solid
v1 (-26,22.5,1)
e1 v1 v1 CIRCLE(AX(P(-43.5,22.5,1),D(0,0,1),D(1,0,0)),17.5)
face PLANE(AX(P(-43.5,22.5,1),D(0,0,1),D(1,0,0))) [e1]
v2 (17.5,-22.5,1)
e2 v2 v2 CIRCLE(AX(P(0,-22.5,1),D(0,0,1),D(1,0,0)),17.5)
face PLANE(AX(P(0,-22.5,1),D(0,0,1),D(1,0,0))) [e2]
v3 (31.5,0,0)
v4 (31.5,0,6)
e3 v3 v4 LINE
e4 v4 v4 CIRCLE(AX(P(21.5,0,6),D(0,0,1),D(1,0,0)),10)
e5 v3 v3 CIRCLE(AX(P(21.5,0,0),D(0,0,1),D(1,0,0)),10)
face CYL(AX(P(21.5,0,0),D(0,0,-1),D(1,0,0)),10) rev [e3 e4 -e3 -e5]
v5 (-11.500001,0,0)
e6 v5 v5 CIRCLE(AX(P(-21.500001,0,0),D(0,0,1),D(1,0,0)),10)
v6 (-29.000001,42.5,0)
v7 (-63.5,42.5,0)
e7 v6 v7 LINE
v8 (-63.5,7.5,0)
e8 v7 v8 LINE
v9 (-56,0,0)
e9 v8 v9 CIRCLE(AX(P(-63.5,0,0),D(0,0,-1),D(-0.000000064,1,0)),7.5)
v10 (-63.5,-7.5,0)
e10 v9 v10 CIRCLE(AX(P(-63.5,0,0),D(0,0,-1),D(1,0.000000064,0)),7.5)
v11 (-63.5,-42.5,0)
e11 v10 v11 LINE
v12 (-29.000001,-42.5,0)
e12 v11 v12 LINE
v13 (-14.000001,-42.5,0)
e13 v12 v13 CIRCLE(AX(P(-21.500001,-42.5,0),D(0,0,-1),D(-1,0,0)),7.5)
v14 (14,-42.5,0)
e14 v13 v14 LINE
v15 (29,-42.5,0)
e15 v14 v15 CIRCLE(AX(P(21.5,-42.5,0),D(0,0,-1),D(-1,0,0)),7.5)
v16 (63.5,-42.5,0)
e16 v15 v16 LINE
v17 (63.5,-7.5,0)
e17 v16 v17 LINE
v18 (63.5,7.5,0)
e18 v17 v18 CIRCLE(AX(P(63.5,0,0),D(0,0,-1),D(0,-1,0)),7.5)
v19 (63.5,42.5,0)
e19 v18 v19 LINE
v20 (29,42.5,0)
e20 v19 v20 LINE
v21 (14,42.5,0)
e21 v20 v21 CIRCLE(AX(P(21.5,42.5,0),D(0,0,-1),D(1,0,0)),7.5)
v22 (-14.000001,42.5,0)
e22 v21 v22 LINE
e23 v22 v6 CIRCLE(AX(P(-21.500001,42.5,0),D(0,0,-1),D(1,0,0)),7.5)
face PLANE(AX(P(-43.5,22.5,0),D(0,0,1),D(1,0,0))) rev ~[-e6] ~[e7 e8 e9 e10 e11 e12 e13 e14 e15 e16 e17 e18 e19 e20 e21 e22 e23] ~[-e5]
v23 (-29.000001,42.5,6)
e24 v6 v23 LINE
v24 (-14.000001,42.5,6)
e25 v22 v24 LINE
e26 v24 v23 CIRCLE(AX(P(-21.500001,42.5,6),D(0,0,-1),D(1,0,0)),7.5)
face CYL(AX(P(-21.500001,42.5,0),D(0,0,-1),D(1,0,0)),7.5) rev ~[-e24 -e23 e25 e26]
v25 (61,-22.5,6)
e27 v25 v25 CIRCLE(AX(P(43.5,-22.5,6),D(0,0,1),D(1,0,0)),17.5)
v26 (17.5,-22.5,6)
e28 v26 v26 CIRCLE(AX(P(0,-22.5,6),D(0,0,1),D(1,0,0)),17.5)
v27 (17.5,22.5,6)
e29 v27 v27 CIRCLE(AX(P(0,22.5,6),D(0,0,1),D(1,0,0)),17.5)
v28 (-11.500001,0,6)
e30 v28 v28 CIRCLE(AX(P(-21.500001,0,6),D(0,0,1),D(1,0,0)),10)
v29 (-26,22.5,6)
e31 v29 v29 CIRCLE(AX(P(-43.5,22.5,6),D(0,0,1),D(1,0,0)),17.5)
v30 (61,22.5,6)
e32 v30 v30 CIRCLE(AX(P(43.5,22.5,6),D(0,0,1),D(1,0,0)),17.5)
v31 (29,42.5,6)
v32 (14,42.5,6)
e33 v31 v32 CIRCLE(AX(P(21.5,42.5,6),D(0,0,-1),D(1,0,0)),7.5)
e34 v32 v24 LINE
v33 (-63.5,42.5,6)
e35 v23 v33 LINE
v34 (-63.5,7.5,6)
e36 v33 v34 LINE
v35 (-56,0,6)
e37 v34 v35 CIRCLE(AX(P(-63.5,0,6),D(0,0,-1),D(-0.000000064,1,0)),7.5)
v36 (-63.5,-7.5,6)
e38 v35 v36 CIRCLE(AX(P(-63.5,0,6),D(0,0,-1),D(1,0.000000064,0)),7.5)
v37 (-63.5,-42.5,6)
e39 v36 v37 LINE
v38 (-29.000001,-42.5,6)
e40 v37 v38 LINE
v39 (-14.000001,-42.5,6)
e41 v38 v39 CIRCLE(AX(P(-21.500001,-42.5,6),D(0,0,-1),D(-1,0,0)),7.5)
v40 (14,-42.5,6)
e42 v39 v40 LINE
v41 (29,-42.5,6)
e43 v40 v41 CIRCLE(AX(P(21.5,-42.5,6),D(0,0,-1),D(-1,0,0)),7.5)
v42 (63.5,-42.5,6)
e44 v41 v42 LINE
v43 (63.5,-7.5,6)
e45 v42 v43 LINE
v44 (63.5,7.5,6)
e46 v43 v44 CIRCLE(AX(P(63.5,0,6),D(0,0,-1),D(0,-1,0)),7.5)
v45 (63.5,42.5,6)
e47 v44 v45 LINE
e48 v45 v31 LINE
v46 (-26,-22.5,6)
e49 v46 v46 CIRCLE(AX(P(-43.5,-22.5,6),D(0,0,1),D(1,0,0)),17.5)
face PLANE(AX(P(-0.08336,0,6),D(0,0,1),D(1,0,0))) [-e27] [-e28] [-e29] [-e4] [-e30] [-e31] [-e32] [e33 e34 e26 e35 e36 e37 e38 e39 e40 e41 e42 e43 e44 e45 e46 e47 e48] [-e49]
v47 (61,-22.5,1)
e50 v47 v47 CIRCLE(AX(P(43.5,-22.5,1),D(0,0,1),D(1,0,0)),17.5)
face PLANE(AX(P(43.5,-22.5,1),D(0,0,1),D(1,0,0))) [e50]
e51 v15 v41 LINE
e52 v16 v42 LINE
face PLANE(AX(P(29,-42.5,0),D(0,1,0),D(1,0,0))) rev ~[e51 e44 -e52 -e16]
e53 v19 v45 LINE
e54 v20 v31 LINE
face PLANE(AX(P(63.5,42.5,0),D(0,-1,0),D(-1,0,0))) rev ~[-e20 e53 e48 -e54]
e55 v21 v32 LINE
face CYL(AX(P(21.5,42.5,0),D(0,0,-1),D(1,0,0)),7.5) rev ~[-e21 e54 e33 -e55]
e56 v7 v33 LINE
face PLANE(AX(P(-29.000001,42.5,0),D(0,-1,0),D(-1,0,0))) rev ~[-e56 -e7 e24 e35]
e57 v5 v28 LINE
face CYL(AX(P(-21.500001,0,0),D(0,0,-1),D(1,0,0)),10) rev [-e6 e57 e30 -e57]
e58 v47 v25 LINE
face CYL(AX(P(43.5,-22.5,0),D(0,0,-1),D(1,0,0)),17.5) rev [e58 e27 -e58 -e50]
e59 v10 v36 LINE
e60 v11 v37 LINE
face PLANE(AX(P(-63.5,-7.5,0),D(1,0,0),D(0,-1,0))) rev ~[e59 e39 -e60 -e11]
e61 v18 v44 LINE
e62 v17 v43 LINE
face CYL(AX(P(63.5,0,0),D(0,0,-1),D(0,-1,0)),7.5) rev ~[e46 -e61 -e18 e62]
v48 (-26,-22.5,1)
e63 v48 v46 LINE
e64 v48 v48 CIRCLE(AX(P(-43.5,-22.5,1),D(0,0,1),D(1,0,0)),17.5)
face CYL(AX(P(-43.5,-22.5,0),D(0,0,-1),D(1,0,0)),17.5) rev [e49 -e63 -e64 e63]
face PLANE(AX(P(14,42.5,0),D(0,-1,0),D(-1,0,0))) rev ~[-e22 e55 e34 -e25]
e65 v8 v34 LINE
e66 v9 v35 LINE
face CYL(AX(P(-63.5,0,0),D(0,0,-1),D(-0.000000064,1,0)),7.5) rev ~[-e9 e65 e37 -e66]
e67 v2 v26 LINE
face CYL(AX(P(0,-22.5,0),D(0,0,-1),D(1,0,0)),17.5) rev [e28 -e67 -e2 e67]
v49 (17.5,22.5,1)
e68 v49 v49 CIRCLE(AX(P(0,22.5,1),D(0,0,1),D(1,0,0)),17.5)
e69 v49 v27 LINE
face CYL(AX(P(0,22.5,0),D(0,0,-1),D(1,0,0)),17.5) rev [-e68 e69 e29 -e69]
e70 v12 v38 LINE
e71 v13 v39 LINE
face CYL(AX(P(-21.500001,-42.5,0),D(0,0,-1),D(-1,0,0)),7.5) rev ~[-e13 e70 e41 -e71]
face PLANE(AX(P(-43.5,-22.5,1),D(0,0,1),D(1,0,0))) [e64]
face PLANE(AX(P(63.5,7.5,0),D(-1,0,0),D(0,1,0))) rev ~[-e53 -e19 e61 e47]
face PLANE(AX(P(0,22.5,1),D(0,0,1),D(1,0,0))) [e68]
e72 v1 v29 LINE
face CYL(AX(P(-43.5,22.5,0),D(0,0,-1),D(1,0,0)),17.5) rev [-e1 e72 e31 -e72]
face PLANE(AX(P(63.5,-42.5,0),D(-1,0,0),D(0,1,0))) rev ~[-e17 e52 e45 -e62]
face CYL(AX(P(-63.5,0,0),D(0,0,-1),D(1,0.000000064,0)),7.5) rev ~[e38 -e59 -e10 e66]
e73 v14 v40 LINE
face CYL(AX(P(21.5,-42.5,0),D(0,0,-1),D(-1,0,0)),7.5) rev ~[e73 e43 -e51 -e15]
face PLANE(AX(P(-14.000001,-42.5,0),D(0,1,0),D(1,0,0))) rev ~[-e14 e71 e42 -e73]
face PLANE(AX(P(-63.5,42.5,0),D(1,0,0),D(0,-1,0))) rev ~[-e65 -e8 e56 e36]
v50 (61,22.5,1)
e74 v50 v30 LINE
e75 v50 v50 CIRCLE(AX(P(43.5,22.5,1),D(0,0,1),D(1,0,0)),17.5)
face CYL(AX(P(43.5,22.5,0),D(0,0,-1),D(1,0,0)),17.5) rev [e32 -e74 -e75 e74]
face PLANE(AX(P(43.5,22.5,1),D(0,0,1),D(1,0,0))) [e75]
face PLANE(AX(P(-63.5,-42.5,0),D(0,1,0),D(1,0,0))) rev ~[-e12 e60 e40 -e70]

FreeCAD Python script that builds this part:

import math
import FreeCAD as App
import Part
import Sketcher

doc = App.newDocument("Part")
body = doc.addObject("PartDesign::Body", "Body")

sketch1 = body.newObject("Sketcher::SketchObject", "Sketch")
sketch1.AttachmentSupport = (doc.getObject("XY_Plane"), [""])
sketch1.MapMode = "FlatFace"
sketch1.addGeometry([
    Part.LineSegment(App.Vector(64, 42, 0), App.Vector(29, 42, 0)),
    Part.ArcOfCircle(Part.Circle(App.Vector(22, 42, 0), App.Vector(0, 0, 1), 8), math.radians(180), math.radians(360)),
    Part.LineSegment(App.Vector(14, 42, 0), App.Vector(-14, 42, 0)),
    Part.ArcOfCircle(Part.Circle(App.Vector(-22, 42, 0), App.Vector(0, 0, 1), 8), math.radians(180), math.radians(360)),
    Part.LineSegment(App.Vector(-29, 42, 0), App.Vector(-64, 42, 0)),
    Part.LineSegment(App.Vector(-64, 42, 0), App.Vector(-64, 8, 0)),
    Part.ArcOfCircle(Part.Circle(App.Vector(-63, 0, 0), App.Vector(0, 0, 1), 7), math.radians(0), math.radians(90)),
    Part.ArcOfCircle(Part.Circle(App.Vector(-63, 0, 0), App.Vector(0, 0, 1), 7), math.radians(-90), math.radians(0)),
    Part.LineSegment(App.Vector(-64, -8, 0), App.Vector(-64, -42, 0)),
    Part.LineSegment(App.Vector(-64, -42, 0), App.Vector(-29, -42, 0)),
    Part.ArcOfCircle(Part.Circle(App.Vector(-22, -42, 0), App.Vector(0, 0, 1), 8), math.radians(0), math.radians(180)),
    Part.LineSegment(App.Vector(-14, -42, 0), App.Vector(14, -42, 0)),
    Part.ArcOfCircle(Part.Circle(App.Vector(22, -42, 0), App.Vector(0, 0, 1), 8), math.radians(0), math.radians(180)),
    Part.LineSegment(App.Vector(29, -42, 0), App.Vector(64, -42, 0)),
    Part.LineSegment(App.Vector(64, -42, 0), App.Vector(64, -8, 0)),
    Part.ArcOfCircle(Part.Circle(App.Vector(64, 0, 0), App.Vector(0, 0, 1), 8), math.radians(90), math.radians(270)),
    Part.LineSegment(App.Vector(64, 8, 0), App.Vector(64, 42, 0)),
    Part.Circle(App.Vector(-44, -22, 0), App.Vector(0, 0, 1), 18),
    Part.Circle(App.Vector(0, -22, 0), App.Vector(0, 0, 1), 18),
    Part.Circle(App.Vector(44, -22, 0), App.Vector(0, 0, 1), 18),
    Part.Circle(App.Vector(-22, 0, 0), App.Vector(0, 0, 1), 10),
    Part.Circle(App.Vector(-44, 22, 0), App.Vector(0, 0, 1), 18),
    Part.Circle(App.Vector(22, 0, 0), App.Vector(0, 0, 1), 10),
    Part.Circle(App.Vector(0, 22, 0), App.Vector(0, 0, 1), 18),
    Part.Circle(App.Vector(44, 22, 0), App.Vector(0, 0, 1), 18),
], False)
sketch1.addConstraint([
    Sketcher.Constraint("Coincident", 0, 2, 1, 2),
    Sketcher.Constraint("Coincident", 1, 1, 2, 1),
    Sketcher.Constraint("Coincident", 2, 2, 3, 2),
    Sketcher.Constraint("Coincident", 3, 1, 4, 1),
    Sketcher.Constraint("Coincident", 4, 2, 5, 1),
    Sketcher.Constraint("Coincident", 5, 2, 6, 2),
    Sketcher.Constraint("Tangent", 6, 1, 7, 2),
    Sketcher.Constraint("Coincident", 7, 1, 8, 1),
    Sketcher.Constraint("Coincident", 8, 2, 9, 1),
    Sketcher.Constraint("Coincident", 9, 2, 10, 2),
    Sketcher.Constraint("Coincident", 10, 1, 11, 1),
    Sketcher.Constraint("Coincident", 11, 2, 12, 2),
    Sketcher.Constraint("Coincident", 12, 1, 13, 1),
    Sketcher.Constraint("Coincident", 13, 2, 14, 1),
    Sketcher.Constraint("Coincident", 14, 2, 15, 2),
    Sketcher.Constraint("Coincident", 15, 1, 16, 1),
    Sketcher.Constraint("Coincident", 16, 2, 0, 1),
    Sketcher.Constraint("Horizontal", 0),
    Sketcher.Constraint("Horizontal", 2),
    Sketcher.Constraint("Horizontal", 4),
    Sketcher.Constraint("Vertical", 5),
    Sketcher.Constraint("Vertical", 8),
    Sketcher.Constraint("Horizontal", 9),
    Sketcher.Constraint("Horizontal", 11),
    Sketcher.Constraint("Horizontal", 13),
    Sketcher.Constraint("Vertical", 14),
    Sketcher.Constraint("Vertical", 16),
    Sketcher.Constraint("Equal", 1, 3),
    Sketcher.Constraint("Equal", 3, 6),
    Sketcher.Constraint("Equal", 6, 7),
    Sketcher.Constraint("Equal", 7, 10),
    Sketcher.Constraint("Equal", 10, 12),
    Sketcher.Constraint("Equal", 12, 15),
    Sketcher.Constraint("Equal", 17, 18),
    Sketcher.Constraint("Equal", 18, 19),
    Sketcher.Constraint("Equal", 19, 21),
    Sketcher.Constraint("Equal", 20, 22),
    Sketcher.Constraint("Equal", 21, 23),
    Sketcher.Constraint("Equal", 23, 24),
    Sketcher.Constraint("Symmetric", 1, 3, 10, 3, -1, 1),
    Sketcher.Constraint("Symmetric", 3, 3, 12, 3, -1, 1),
    Sketcher.Constraint("Symmetric", 6, 3, 15, 3, -1, 1),
    Sketcher.Constraint("Symmetric", 19, 3, 21, 3, -1, 1),
    Sketcher.Constraint("Symmetric", 20, 3, 22, 3, -1, 1),
    Sketcher.Constraint("Symmetric", 18, 3, 23, 3, -1, 1),
    Sketcher.Constraint("Symmetric", 17, 3, 24, 3, -1, 1),
    Sketcher.Constraint("Symmetric", 4, 2, 13, 2, -1, 1),
    Sketcher.Constraint("Symmetric", 8, 2, 16, 2, -1, 1),
    Sketcher.Constraint("Symmetric", 1, 3, 3, 3, -2),
    Sketcher.Constraint("Symmetric", 17, 3, 19, 3, -2),
    Sketcher.Constraint("Symmetric", 8, 2, 13, 2, -2),
    Sketcher.Constraint("PointOnObject", 6, 3, -1),
    Sketcher.Constraint("PointOnObject", 18, 3, -2),
    Sketcher.Constraint("PointOnObject", 20, 3, -1),
    Sketcher.Constraint("PointOnObject", 6, 1, -1),
    Sketcher.Constraint("Horizontal", 17, 3, 18, 3),
    Sketcher.Constraint("Horizontal", 3, 3, 0, 2),
    Sketcher.Constraint("Horizontal", 0, 2, 1, 1),
    Sketcher.Constraint("Horizontal", 9, 2, 10, 1),
    Sketcher.Constraint("Vertical", 10, 3, 20, 3),
    Sketcher.Constraint("Vertical", 7, 3, 4, 2),
    Sketcher.Constraint("Diameter", 17, 35.0),
    Sketcher.Constraint("Diameter", 20, 20.0),
    Sketcher.Constraint("Radius", 1, 7.5),
    Sketcher.Constraint("DistanceX", 2, 2, 2, 1, 28.000001),
    Sketcher.Constraint("DistanceY", 5, 2, 5, 1, 35.0),
    Sketcher.Constraint("DistanceX", 0, 2, 0, 1, 34.5),
    Sketcher.Constraint("DistanceX", 17, 3, 10, 3, 21.999999),
    Sketcher.Constraint("DistanceY", 10, 3, 17, 3, 20.0),
])
pad1 = body.newObject("PartDesign::Pad", "Pad")
pad1.Profile = sketch1
pad1.Length = 6

sketch2 = body.newObject("Sketcher::SketchObject", "Sketch001")
sketch2.AttachmentSupport = (doc.getObject("XY_Plane"), [""])
sketch2.MapMode = "FlatFace"
sketch2.addGeometry([
    Part.Circle(App.Vector(-44, 22, 0), App.Vector(0, 0, 1), 18),
    Part.Circle(App.Vector(0, 22, 0), App.Vector(0, 0, 1), 18),
    Part.Circle(App.Vector(44, 22, 0), App.Vector(0, 0, 1), 18),
    Part.Circle(App.Vector(44, -22, 0), App.Vector(0, 0, 1), 18),
    Part.Circle(App.Vector(0, -22, 0), App.Vector(0, 0, 1), 18),
    Part.Circle(App.Vector(-44, -22, 0), App.Vector(0, 0, 1), 18),
], False)
sketch2.addConstraint([
    Sketcher.Constraint("Equal", 0, 1),
    Sketcher.Constraint("Equal", 1, 2),
    Sketcher.Constraint("Equal", 2, 3),
    Sketcher.Constraint("Equal", 3, 4),
    Sketcher.Constraint("Equal", 4, 5),
    Sketcher.Constraint("Symmetric", 0, 3, 3, 3, -1, 1),
    Sketcher.Constraint("Symmetric", 1, 3, 4, 3, -1, 1),
    Sketcher.Constraint("Symmetric", 2, 3, 5, 3, -1, 1),
    Sketcher.Constraint("Symmetric", 0, 3, 2, 3, -2),
    Sketcher.Constraint("PointOnObject", 1, 3, -2),
    Sketcher.Constraint("Horizontal", 0, 3, 1, 3),
    Sketcher.Constraint("Diameter", 0, 35.0),
    Sketcher.Constraint("DistanceX", 0, 3, 2, 3, 87.0),
    Sketcher.Constraint("DistanceY", 3, 3, 2, 3, 45.0),
])
pad2 = body.newObject("PartDesign::Pad", "Pad001")
pad2.Profile = sketch2
pad2.Length = 1

doc.recompute()
